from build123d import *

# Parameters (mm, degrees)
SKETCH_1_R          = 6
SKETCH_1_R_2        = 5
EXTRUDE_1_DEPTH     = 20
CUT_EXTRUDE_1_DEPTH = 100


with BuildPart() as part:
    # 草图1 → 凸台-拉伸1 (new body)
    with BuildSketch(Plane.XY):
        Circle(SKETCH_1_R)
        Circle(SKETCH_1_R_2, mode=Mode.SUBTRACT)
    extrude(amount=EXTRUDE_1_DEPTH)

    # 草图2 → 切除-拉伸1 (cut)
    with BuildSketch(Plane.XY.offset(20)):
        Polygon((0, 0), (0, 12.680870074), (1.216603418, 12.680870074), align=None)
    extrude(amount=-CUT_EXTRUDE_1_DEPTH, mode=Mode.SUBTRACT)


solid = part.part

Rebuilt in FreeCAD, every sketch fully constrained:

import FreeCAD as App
import Part
import Sketcher

V = App.Vector
Q = App.Units.Quantity


def add_polygon(sketch, points):
    """Adds a closed chain of lines whose ends are joined by coincident constraints."""
    first, n = sketch.GeometryCount, len(points)
    for a, b in zip(points, points[1:] + points[:1]):
        sketch.addGeometry(Part.LineSegment(App.Vector(*a, 0), App.Vector(*b, 0)), False)
    for i in range(n):
        sketch.addConstraint(Sketcher.Constraint("Coincident", first + i, 2, first + (i + 1) % n, 1))

doc = App.newDocument("Part")
params = doc.addObject("Spreadsheet::Sheet", "Params")
for row, (alias, value) in enumerate([
    ("sketch1_diameter", "12 mm"),
    ("sketch1_diameter2", "10 mm"),
    ("pad1_length", "20 mm"),
    ("pocket1_length", "100 mm"),
], start=1):
    params.set(f"A{row}", alias)
    params.set(f"B{row}", "=" + value)
    params.setAlias(f"B{row}", alias)

body = doc.addObject("PartDesign::Body", "Body")

# Sketch on XY plane
sketch1 = body.newObject("Sketcher::SketchObject", "Sketch")
sketch1.AttachmentSupport = (doc.getObject("XY_Plane"), [""])
sketch1.MapMode = "FlatFace"
sketch1.addGeometry([
    Part.Circle(V(0, 0, 0), V(0, 0, 1), 6),
    Part.Circle(V(0, 0, 0), V(0, 0, 1), 5),
], False)
sketch1.addConstraint([
    Sketcher.Constraint("Coincident", 0, 3, -1, 1),
    Sketcher.Constraint("Coincident", 1, 3, -1, 1),
    Sketcher.Constraint("Diameter", 0, Q("12 mm")),
    Sketcher.Constraint("Diameter", 1, Q("10 mm")),
])
sketch1.setExpression("Constraints[2]", "Params.sketch1_diameter")
sketch1.setExpression("Constraints[3]", "Params.sketch1_diameter2")
pad1 = body.newObject("PartDesign::Pad", "Pad")
pad1.Profile = sketch1
pad1.setExpression("Length", "Params.pad1_length")

# Sketch on XY plane
sketch2 = body.newObject("Sketcher::SketchObject", "Sketch001")
sketch2.AttachmentSupport = (doc.getObject("XY_Plane"), [""])
sketch2.MapMode = "FlatFace"
sketch2.AttachmentOffset = App.Placement(V(0, 0, 20), App.Rotation())
add_polygon(sketch2, [(0, 12.7), (0, 0), (1.2, 12.7)])  # lines 0-2
sketch2.addConstraint([
    Sketcher.Constraint("Vertical", 0),
    Sketcher.Constraint("Horizontal", 2),
    Sketcher.Constraint("Coincident", 0, 2, -1, 1),
    Sketcher.Constraint("DistanceY", 0, 2, 0, 1, Q("12.68087 mm")),
    Sketcher.Constraint("DistanceX", 2, 2, 2, 1, Q("1.216603 mm")),
])
pocket1 = body.newObject("PartDesign::Pocket", "Pocket")
pocket1.Profile = sketch2
pocket1.setExpression("Length", "Params.pocket1_length")

doc.recompute()
